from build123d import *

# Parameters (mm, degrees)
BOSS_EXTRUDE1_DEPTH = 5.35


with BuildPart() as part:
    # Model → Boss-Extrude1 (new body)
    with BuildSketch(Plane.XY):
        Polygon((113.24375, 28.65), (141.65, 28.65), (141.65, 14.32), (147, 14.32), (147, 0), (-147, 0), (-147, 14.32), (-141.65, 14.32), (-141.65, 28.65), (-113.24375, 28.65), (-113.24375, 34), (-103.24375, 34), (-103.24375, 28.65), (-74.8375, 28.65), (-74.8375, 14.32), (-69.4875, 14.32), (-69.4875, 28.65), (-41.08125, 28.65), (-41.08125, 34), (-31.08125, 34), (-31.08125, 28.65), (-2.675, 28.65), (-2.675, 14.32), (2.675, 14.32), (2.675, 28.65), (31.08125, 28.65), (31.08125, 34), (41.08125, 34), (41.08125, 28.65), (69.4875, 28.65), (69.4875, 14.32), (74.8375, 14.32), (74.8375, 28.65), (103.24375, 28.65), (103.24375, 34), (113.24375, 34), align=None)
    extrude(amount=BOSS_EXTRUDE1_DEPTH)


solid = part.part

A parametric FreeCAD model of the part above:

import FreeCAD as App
import Part
import Sketcher
Q = App.Units.Quantity


def add_polygon(sketch, points):
    """Adds a closed chain of lines whose ends are joined by coincident constraints."""
    first, n = sketch.GeometryCount, len(points)
    for a, b in zip(points, points[1:] + points[:1]):
        sketch.addGeometry(Part.LineSegment(App.Vector(*a, 0), App.Vector(*b, 0)), False)
    for i in range(n):
        sketch.addConstraint(Sketcher.Constraint("Coincident", first + i, 2, first + (i + 1) % n, 1))

doc = App.newDocument("Part")
params = doc.addObject("Spreadsheet::Sheet", "Params")
for row, (alias, value) in enumerate([
    ("sketch1_width", "10 mm"),
    ("sketch1_width2", "294 mm"),
    ("sketch1_width3", "5.35 mm"),
    ("sketch1_height", "14.33 mm"),
    ("pad1_length", "5.35 mm"),
], start=1):
    params.set(f"A{row}", alias)
    params.set(f"B{row}", "=" + value)
    params.setAlias(f"B{row}", alias)

body = doc.addObject("PartDesign::Body", "Body")

# Sketch on XY plane
sketch1 = doc.addObject("Sketcher::SketchObject", "Sketch")
body.addObject(sketch1)
sketch1.AttachmentSupport = (doc.XY_Plane, [""])
sketch1.MapMode = "FlatFace"
add_polygon(sketch1, [(141.65, 28.65), (113.24375, 28.65), (113.24375, 34), (103.24375, 34), (103.24375, 28.65), (74.8375, 28.65), (74.8375, 14.32), (69.4875, 14.32), (69.4875, 28.65), (41.08125, 28.65), (41.08125, 34), (31.08125, 34), (31.08125, 28.65), (2.675, 28.65), (2.675, 14.32), (-2.675, 14.32), (-2.675, 28.65), (-31.08125, 28.65), (-31.08125, 34), (-41.08125, 34), (-41.08125, 28.65), (-69.4875, 28.65), (-69.4875, 14.32), (-74.8375, 14.32), (-74.8375, 28.65), (-103.24375, 28.65), (-103.24375, 34), (-113.24375, 34), (-113.24375, 28.65), (-141.65, 28.65), (-141.65, 14.32), (-147, 14.32), (-147, 0), (147, 0), (147, 14.32), (141.65, 14.32)])  # lines 0-35
sketch1.addConstraint(Sketcher.Constraint("Horizontal", 0))
sketch1.addConstraint(Sketcher.Constraint("Vertical", 1))
sketch1.addConstraint(Sketcher.Constraint("Horizontal", 2))
sketch1.addConstraint(Sketcher.Constraint("Vertical", 3))
sketch1.addConstraint(Sketcher.Constraint("Horizontal", 4))
sketch1.addConstraint(Sketcher.Constraint("Vertical", 5))
sketch1.addConstraint(Sketcher.Constraint("Horizontal", 6))
sketch1.addConstraint(Sketcher.Constraint("Vertical", 7))
sketch1.addConstraint(Sketcher.Constraint("Horizontal", 8))
sketch1.addConstraint(Sketcher.Constraint("Vertical", 9))
sketch1.addConstraint(Sketcher.Constraint("Horizontal", 10))
sketch1.addConstraint(Sketcher.Constraint("Vertical", 11))
sketch1.addConstraint(Sketcher.Constraint("Horizontal", 12))
sketch1.addConstraint(Sketcher.Constraint("Vertical", 13))
sketch1.addConstraint(Sketcher.Constraint("Horizontal", 14))
sketch1.addConstraint(Sketcher.Constraint("Vertical", 15))
sketch1.addConstraint(Sketcher.Constraint("Horizontal", 16))
sketch1.addConstraint(Sketcher.Constraint("Vertical", 17))
sketch1.addConstraint(Sketcher.Constraint("Horizontal", 18))
sketch1.addConstraint(Sketcher.Constraint("Vertical", 19))
sketch1.addConstraint(Sketcher.Constraint("Horizontal", 20))
sketch1.addConstraint(Sketcher.Constraint("Vertical", 21))
sketch1.addConstraint(Sketcher.Constraint("Horizontal", 22))
sketch1.addConstraint(Sketcher.Constraint("Vertical", 23))
sketch1.addConstraint(Sketcher.Constraint("Horizontal", 24))
sketch1.addConstraint(Sketcher.Constraint("Vertical", 25))
sketch1.addConstraint(Sketcher.Constraint("Horizontal", 26))
sketch1.addConstraint(Sketcher.Constraint("Vertical", 27))
sketch1.addConstraint(Sketcher.Constraint("Horizontal", 28))
sketch1.addConstraint(Sketcher.Constraint("Vertical", 29))
sketch1.addConstraint(Sketcher.Constraint("Horizontal", 30))
sketch1.addConstraint(Sketcher.Constraint("Vertical", 31))
sketch1.addConstraint(Sketcher.Constraint("Horizontal", 32))
sketch1.addConstraint(Sketcher.Constraint("Vertical", 33))
sketch1.addConstraint(Sketcher.Constraint("Horizontal", 34))
sketch1.addConstraint(Sketcher.Constraint("Vertical", 35))
sketch1.addConstraint(Sketcher.Constraint("Symmetric", 31, 2, 32, 2, -1, 1))
sketch1.addConstraint(Sketcher.Constraint("Symmetric", 12, 2, 15, 2, -2))
sketch1.addConstraint(Sketcher.Constraint("Symmetric", 10, 2, 17, 2, -2))
sketch1.addConstraint(Sketcher.Constraint("Symmetric", 8, 2, 19, 2, -2))
sketch1.addConstraint(Sketcher.Constraint("Symmetric", 6, 2, 21, 2, -2))
sketch1.addConstraint(Sketcher.Constraint("Symmetric", 4, 2, 23, 2, -2))
sketch1.addConstraint(Sketcher.Constraint("Symmetric", 2, 2, 25, 2, -2))
sketch1.addConstraint(Sketcher.Constraint("Symmetric", 0, 2, 27, 2, -2))
sketch1.addConstraint(Sketcher.Constraint("Symmetric", 29, 2, 34, 2, -2))
sketch1.addConstraint(Sketcher.Constraint("Horizontal", 0, 2, 3, 2))
sketch1.addConstraint(Sketcher.Constraint("Horizontal", 4, 2, 7, 2))
sketch1.addConstraint(Sketcher.Constraint("Horizontal", 2, 2, 9, 2))
sketch1.addConstraint(Sketcher.Constraint("Horizontal", 8, 2, 11, 2))
sketch1.addConstraint(Sketcher.Constraint("Horizontal", 6, 2, 13, 2))
sketch1.addConstraint(Sketcher.Constraint("Horizontal", 22, 2, 29, 2))
sketch1.addConstraint(Sketcher.Constraint("Equal", 0, 4))
sketch1.addConstraint(Sketcher.Constraint("Equal", 4, 8))
sketch1.addConstraint(Sketcher.Constraint("Equal", 2, 10))
sketch1.addConstraint(Sketcher.Constraint("Equal", 8, 12))
sketch1.addConstraint(Sketcher.Constraint("Equal", 6, 14))
sketch1.addConstraint(Sketcher.Constraint("Equal", 22, 30))
sketch1.addConstraint(Sketcher.Constraint("Equal", 34, 1))
sketch1.addConstraint(Sketcher.Constraint("DistanceX", 2, 2, 2, 1, Q("10 mm")))
sketch1.addConstraint(Sketcher.Constraint("DistanceX", 32, 1, 32, 2, Q("294 mm")))
sketch1.addConstraint(Sketcher.Constraint("DistanceY", -1, 1, 1, 2, Q("34 mm")))
sketch1.addConstraint(Sketcher.Constraint("DistanceX", 6, 2, 6, 1, Q("5.35 mm")))
sketch1.addConstraint(Sketcher.Constraint("DistanceY", 5, 2, 5, 1, Q("14.33 mm")))
sketch1.setExpression("Constraints[94]", "Params.sketch1_width")
sketch1.setExpression("Constraints[95]", "Params.sketch1_width2")
sketch1.setExpression("Constraints[97]", "Params.sketch1_width3")
sketch1.setExpression("Constraints[98]", "Params.sketch1_height")
pad1 = doc.addObject("PartDesign::Pad", "Pad")
body.addObject(pad1)
pad1.Profile = sketch1
pad1.setExpression("Length", "Params.pad1_length")

doc.recompute()
